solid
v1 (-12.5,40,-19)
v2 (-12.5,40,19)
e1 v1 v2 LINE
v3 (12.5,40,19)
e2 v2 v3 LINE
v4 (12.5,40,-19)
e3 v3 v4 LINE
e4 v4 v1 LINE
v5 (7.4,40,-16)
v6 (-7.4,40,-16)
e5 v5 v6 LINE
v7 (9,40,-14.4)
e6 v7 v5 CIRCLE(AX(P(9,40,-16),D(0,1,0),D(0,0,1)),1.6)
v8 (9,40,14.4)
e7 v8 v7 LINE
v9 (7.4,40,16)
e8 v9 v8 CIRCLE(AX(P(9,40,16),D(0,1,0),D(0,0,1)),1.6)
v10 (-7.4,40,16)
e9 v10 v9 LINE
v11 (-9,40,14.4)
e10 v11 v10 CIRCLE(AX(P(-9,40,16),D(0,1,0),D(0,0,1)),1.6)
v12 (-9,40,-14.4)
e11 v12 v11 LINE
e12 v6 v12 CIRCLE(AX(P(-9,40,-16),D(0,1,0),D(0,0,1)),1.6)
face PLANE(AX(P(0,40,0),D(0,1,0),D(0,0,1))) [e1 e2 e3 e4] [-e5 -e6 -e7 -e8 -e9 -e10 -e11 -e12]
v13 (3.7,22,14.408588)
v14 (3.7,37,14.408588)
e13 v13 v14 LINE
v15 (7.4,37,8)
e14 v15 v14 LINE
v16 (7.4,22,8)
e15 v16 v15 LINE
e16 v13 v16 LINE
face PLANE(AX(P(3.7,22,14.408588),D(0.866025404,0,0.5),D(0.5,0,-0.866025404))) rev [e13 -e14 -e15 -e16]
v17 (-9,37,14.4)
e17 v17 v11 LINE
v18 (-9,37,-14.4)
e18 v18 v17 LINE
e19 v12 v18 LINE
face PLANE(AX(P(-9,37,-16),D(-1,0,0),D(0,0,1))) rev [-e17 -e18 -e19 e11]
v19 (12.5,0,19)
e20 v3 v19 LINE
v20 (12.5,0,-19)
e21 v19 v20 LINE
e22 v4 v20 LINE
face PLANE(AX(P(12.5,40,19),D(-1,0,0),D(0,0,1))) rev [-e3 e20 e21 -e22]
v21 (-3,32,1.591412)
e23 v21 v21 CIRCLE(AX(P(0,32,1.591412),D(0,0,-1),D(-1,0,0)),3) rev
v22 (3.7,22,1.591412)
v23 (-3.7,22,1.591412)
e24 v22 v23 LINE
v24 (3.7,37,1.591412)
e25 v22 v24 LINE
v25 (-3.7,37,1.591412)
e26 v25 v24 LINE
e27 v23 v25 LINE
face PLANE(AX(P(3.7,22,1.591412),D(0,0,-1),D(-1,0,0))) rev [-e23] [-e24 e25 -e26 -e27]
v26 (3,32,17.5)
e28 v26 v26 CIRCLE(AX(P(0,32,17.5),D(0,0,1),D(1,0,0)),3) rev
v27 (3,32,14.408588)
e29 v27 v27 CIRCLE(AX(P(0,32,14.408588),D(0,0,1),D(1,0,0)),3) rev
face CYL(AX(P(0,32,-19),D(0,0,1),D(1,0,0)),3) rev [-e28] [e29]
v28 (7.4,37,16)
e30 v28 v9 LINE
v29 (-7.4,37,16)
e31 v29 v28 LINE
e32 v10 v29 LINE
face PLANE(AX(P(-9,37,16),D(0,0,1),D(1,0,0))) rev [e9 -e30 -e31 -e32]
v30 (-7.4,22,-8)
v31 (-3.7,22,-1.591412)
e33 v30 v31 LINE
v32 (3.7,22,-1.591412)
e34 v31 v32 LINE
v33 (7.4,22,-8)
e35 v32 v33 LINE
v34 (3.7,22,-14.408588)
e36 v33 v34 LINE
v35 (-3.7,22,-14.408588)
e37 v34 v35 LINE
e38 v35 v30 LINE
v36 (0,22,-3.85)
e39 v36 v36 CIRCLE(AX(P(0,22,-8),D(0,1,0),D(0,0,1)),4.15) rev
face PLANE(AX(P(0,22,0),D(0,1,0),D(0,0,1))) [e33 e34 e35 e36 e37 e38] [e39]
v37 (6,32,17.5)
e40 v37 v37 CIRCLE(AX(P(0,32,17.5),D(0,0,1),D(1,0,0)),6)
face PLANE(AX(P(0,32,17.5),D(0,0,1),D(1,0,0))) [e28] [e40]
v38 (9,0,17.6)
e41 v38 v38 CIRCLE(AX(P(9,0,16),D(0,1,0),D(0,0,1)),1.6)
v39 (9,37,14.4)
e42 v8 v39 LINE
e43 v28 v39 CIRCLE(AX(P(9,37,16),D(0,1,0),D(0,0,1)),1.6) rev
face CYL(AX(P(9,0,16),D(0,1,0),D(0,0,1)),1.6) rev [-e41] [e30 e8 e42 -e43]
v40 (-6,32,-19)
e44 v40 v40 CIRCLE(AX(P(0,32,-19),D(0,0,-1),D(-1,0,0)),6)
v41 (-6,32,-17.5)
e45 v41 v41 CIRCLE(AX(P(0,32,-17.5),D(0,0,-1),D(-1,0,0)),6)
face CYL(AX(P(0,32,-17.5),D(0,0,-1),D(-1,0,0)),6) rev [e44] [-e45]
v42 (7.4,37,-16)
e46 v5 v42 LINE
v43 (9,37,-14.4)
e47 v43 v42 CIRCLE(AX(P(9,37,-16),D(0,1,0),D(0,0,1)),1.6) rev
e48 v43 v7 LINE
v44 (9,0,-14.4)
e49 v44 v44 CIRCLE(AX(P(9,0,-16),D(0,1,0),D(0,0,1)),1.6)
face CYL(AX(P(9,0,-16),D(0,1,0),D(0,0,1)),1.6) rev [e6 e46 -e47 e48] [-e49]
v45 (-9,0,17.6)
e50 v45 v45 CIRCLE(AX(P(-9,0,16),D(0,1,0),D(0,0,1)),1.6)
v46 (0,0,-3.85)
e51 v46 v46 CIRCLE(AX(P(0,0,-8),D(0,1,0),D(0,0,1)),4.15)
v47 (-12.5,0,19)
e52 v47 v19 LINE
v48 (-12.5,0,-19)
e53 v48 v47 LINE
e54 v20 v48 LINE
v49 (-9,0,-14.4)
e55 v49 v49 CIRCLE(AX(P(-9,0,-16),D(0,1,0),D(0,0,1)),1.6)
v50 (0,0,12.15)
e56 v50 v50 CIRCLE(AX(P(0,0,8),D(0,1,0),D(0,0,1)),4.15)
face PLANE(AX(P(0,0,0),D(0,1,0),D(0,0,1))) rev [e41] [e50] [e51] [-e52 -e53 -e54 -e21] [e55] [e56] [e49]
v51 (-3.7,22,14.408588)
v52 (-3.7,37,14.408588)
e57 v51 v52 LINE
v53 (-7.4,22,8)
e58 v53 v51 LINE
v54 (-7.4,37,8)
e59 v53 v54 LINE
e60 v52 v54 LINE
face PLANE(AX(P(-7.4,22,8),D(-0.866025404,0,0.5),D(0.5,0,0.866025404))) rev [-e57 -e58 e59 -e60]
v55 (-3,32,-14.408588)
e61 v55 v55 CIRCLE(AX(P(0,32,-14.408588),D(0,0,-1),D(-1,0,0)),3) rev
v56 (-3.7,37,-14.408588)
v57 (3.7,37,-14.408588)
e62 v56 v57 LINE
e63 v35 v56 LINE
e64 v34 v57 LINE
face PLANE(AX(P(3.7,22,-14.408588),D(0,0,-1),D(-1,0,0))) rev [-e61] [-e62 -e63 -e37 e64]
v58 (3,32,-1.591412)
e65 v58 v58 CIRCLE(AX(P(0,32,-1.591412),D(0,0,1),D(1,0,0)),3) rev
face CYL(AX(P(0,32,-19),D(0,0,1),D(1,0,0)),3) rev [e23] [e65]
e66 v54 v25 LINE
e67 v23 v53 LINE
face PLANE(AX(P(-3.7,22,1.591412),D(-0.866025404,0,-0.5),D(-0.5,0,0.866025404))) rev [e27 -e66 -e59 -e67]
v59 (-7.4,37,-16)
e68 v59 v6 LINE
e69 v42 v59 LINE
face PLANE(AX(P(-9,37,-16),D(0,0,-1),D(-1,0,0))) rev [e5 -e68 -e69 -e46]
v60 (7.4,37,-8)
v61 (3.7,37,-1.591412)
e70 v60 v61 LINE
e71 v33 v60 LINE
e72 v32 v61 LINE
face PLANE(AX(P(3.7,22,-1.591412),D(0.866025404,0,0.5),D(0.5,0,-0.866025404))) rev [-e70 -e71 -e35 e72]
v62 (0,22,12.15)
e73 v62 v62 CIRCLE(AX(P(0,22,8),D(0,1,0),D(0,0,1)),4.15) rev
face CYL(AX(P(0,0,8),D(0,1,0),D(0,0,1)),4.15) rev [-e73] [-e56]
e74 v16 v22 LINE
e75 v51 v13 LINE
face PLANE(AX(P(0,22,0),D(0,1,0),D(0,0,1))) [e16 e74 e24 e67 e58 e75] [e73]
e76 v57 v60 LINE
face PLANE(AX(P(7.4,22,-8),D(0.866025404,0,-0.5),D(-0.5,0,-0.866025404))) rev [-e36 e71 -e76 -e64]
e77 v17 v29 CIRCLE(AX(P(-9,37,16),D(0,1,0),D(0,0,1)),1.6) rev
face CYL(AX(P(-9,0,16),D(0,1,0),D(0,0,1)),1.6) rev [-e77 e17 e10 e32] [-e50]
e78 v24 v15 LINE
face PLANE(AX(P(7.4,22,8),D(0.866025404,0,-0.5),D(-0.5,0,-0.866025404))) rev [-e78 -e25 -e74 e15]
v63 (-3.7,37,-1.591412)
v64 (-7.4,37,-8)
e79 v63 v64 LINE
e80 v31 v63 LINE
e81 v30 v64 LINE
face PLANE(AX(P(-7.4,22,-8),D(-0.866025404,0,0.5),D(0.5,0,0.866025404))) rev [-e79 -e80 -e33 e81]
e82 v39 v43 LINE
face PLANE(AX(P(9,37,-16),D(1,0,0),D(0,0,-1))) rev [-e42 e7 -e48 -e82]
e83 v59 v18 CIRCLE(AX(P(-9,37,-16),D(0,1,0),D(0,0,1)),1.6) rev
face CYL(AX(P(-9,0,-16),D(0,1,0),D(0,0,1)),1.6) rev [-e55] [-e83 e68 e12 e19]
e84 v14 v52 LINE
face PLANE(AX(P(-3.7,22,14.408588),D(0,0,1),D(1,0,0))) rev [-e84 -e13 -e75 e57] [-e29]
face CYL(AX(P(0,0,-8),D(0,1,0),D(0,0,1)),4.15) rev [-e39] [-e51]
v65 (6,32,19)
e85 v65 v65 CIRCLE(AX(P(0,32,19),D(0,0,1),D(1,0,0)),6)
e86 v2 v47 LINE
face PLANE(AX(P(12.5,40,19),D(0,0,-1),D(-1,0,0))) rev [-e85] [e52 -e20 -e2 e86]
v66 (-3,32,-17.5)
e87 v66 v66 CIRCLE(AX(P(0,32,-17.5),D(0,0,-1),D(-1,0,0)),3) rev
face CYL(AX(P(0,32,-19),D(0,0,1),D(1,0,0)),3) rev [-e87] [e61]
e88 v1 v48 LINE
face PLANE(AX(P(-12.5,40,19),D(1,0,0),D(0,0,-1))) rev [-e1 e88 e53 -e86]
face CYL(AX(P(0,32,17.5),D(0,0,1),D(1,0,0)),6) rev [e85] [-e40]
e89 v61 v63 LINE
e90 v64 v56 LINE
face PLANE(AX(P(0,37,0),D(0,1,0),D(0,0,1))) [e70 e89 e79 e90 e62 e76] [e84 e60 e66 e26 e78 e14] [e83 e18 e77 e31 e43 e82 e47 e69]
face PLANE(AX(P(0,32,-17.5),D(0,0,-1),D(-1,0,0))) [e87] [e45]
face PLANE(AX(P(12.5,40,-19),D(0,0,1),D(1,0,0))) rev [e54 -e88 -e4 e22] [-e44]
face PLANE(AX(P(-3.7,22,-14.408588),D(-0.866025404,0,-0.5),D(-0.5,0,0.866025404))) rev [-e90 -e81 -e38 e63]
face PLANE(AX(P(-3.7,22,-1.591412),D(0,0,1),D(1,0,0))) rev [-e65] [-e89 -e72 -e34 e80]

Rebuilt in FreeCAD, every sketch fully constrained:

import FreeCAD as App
import Part
import Sketcher

V = App.Vector
Q = App.Units.Quantity

doc = App.newDocument("Part")
body = doc.addObject("PartDesign::Body", "Body")

# Sketch on XZ plane
sketch1 = doc.addObject("Sketcher::SketchObject", "Sketch")
body.addObject(sketch1)
sketch1.AttachmentSupport = (doc.XZ_Plane, [""])
sketch1.MapMode = "FlatFace"
sketch1.addGeometry([
    Part.LineSegment(V(-12, -19, 0), V(-12, 19, 0)),
    Part.LineSegment(V(-12, 19, 0), V(12, 19, 0)),
    Part.LineSegment(V(12, 19, 0), V(12, -19, 0)),
    Part.LineSegment(V(12, -19, 0), V(-12, -19, 0)),
], False)
sketch1.addConstraint([
    Sketcher.Constraint("Coincident", 0, 2, 1, 1),
    Sketcher.Constraint("Coincident", 1, 2, 2, 1),
    Sketcher.Constraint("Coincident", 2, 2, 3, 1),
    Sketcher.Constraint("Coincident", 3, 2, 0, 1),
    Sketcher.Constraint("Vertical", 0),
    Sketcher.Constraint("Horizontal", 1),
    Sketcher.Constraint("Vertical", 2),
    Sketcher.Constraint("Horizontal", 3),
    Sketcher.Constraint("Symmetric", 0, 2, 2, 2, -1, 1),
    Sketcher.Constraint("DistanceX", 1, 1, 1, 2, 25.0),
    Sketcher.Constraint("DistanceY", 0, 1, 0, 2, 38.0),
])
pad1 = doc.addObject("PartDesign::Pad", "Pad")
body.addObject(pad1)
pad1.Profile = sketch1
pad1.Length = 40
pad1.Reversed = True

# Sketch on XY plane
sketch2 = doc.addObject("Sketcher::SketchObject", "Sketch001")
body.addObject(sketch2)
sketch2.AttachmentSupport = (doc.XY_Plane, [""])
sketch2.MapMode = "FlatFace"
sketch2.AttachmentOffset = App.Placement(V(0, 0, 19), App.Rotation())
sketch2.addGeometry(Part.Circle(V(0, 32, 0), V(0, 0, 1), 3), False)
sketch2.addConstraint([
    Sketcher.Constraint("PointOnObject", 0, 3, -2),
    Sketcher.Constraint("Diameter", 0, 6.0),
    Sketcher.Constraint("DistanceY", -1, 1, 0, 3, 32.0),
])
pocket1 = doc.addObject("PartDesign::Pocket", "Pocket")
body.addObject(pocket1)
pocket1.Profile = sketch2
pocket1.Type = "ThroughAll"

# Sketch on XZ plane
sketch3 = doc.addObject("Sketcher::SketchObject", "Sketch002")
body.addObject(sketch3)
sketch3.AttachmentSupport = (doc.XZ_Plane, [""])
sketch3.MapMode = "FlatFace"
sketch3.AttachmentOffset = App.Placement(V(0, 0, -40), App.Rotation())
sketch3.addGeometry([
    Part.Circle(V(0, 8, 0), V(0, 0, 1), 4.2),
    Part.Circle(V(0, -8, 0), V(0, 0, 1), 4.2),
], False)
sketch3.addConstraint([
    Sketcher.Constraint("Equal", 0, 1),
    Sketcher.Constraint("Symmetric", 0, 3, 1, 3, -1, 1),
    Sketcher.Constraint("PointOnObject", 0, 3, -2),
    Sketcher.Constraint("Diameter", 0, 8.3),
    Sketcher.Constraint("DistanceY", -1, 1, 0, 3, 8.0),
])
pocket2 = doc.addObject("PartDesign::Pocket", "Pocket001")
body.addObject(pocket2)
pocket2.Profile = sketch3
pocket2.Type = "ThroughAll"
pocket2.Reversed = True

# Sketch on XZ plane
sketch4 = doc.addObject("Sketcher::SketchObject", "Sketch003")
body.addObject(sketch4)
sketch4.AttachmentSupport = (doc.XZ_Plane, [""])
sketch4.MapMode = "FlatFace"
sketch4.AttachmentOffset = App.Placement(V(0, 0, -40), App.Rotation())
sketch4.addGeometry([
    Part.LineSegment(V(-4, 14, 0), V(4, 14, 0)),  # 0
    Part.LineSegment(V(4, 14, 0), V(7, 8, 0)),  # 1
    Part.LineSegment(V(7, 8, 0), V(4, 2, 0)),  # 2
    Part.LineSegment(V(4, 2, 0), V(-4, 2, 0)),  # 3
    Part.LineSegment(V(-4, 2, 0), V(-7, 8, 0)),  # 4
    Part.LineSegment(V(-7, 8, 0), V(-4, 14, 0)),  # 5
    Part.LineSegment(V(-4, -14, 0), V(-7, -8, 0)),  # 6
    Part.LineSegment(V(-7, -8, 0), V(-4, -2, 0)),  # 7
    Part.LineSegment(V(-4, -2, 0), V(4, -2, 0)),  # 8
    Part.LineSegment(V(4, -2, 0), V(7, -8, 0)),  # 9
    Part.LineSegment(V(7, -8, 0), V(4, -14, 0)),  # 10
    Part.LineSegment(V(4, -14, 0), V(-4, -14, 0)),  # 11
], False)
sketch4.addConstraint([
    Sketcher.Constraint("Coincident", 0, 2, 1, 1),
    Sketcher.Constraint("Coincident", 1, 2, 2, 1),
    Sketcher.Constraint("Coincident", 2, 2, 3, 1),
    Sketcher.Constraint("Coincident", 3, 2, 4, 1),
    Sketcher.Constraint("Coincident", 4, 2, 5, 1),
    Sketcher.Constraint("Coincident", 5, 2, 0, 1),
    Sketcher.Constraint("Coincident", 6, 2, 7, 1),
    Sketcher.Constraint("Coincident", 7, 2, 8, 1),
    Sketcher.Constraint("Coincident", 8, 2, 9, 1),
    Sketcher.Constraint("Coincident", 9, 2, 10, 1),
    Sketcher.Constraint("Coincident", 10, 2, 11, 1),
    Sketcher.Constraint("Coincident", 11, 2, 6, 1),
    Sketcher.Constraint("Horizontal", 0),
    Sketcher.Constraint("Horizontal", 3),
    Sketcher.Constraint("Horizontal", 8),
    Sketcher.Constraint("Horizontal", 11),
    Sketcher.Constraint("Symmetric", 1, 2, 6, 2, -1, 1),
    Sketcher.Constraint("Symmetric", 2, 2, 7, 2, -1, 1),
    Sketcher.Constraint("Symmetric", 4, 2, 9, 2, -1, 1),
    Sketcher.Constraint("Symmetric", 5, 2, 10, 2, -1, 1),
    Sketcher.Constraint("Symmetric", 1, 2, 4, 2, -2),
    Sketcher.Constraint("Parallel", 1, 4),
    Sketcher.Constraint("Parallel", 2, 5),
    Sketcher.Constraint("Parallel", 4, 6),
    Sketcher.Constraint("Parallel", 6, 9),
    Sketcher.Constraint("Vertical", 0, 2, 2, 2),
    Sketcher.Constraint("Vertical", 3, 2, 5, 2),
    Sketcher.Constraint("Angle", 1, Q("-60 deg")),
    Sketcher.Constraint("DistanceX", 0, 1, 0, 2, 7.4),
    Sketcher.Constraint("DistanceY", -1, 1, 1, 2, 8.0),
    Sketcher.Constraint("Distance", 1, 7.4),
])
pocket3 = doc.addObject("PartDesign::Pocket", "Pocket002")
body.addObject(pocket3)
pocket3.Profile = sketch4
pocket3.Length = 18
pocket3.Reversed = True

# Sketch on XZ plane
sketch5 = doc.addObject("Sketcher::SketchObject", "Sketch004")
body.addObject(sketch5)
sketch5.AttachmentSupport = (doc.XZ_Plane, [""])
sketch5.MapMode = "FlatFace"
sketch5.AttachmentOffset = App.Placement(V(0, 0, -40), App.Rotation())
sketch5.addGeometry([
    Part.Circle(V(9, 16, 0), V(0, 0, 1), 1.6),
    Part.Circle(V(-9, 16, 0), V(0, 0, 1), 1.6),
    Part.Circle(V(-9, -16, 0), V(0, 0, 1), 1.6),
    Part.Circle(V(9, -16, 0), V(0, 0, 1), 1.6),
], False)
sketch5.addConstraint([
    Sketcher.Constraint("Equal", 0, 1),
    Sketcher.Constraint("Equal", 1, 2),
    Sketcher.Constraint("Equal", 2, 3),
    Sketcher.Constraint("Symmetric", 0, 3, 2, 3, -1, 1),
    Sketcher.Constraint("Symmetric", 1, 3, 3, 3, -1, 1),
    Sketcher.Constraint("Symmetric", 0, 3, 1, 3, -2),
    Sketcher.Constraint("Diameter", 0, 3.2),
    Sketcher.Constraint("DistanceX", -1, 1, 0, 3, 9.0),
    Sketcher.Constraint("DistanceY", -1, 1, 0, 3, 16.0),
])
pocket4 = doc.addObject("PartDesign::Pocket", "Pocket003")
body.addObject(pocket4)
pocket4.Profile = sketch5
pocket4.Type = "ThroughAll"
pocket4.Reversed = True

# Sketch on XZ plane
sketch6 = doc.addObject("Sketcher::SketchObject", "Sketch005")
body.addObject(sketch6)
sketch6.AttachmentSupport = (doc.XZ_Plane, [""])
sketch6.MapMode = "FlatFace"
sketch6.AttachmentOffset = App.Placement(V(0, 0, -40), App.Rotation())
sketch6.addGeometry([
    Part.LineSegment(V(-9, -16, 0), V(-9, 16, 0)),
    Part.LineSegment(V(-9, 16, 0), V(9, 16, 0)),
    Part.LineSegment(V(9, 16, 0), V(9, -16, 0)),
    Part.LineSegment(V(9, -16, 0), V(-9, -16, 0)),
], False)
sketch6.addConstraint([
    Sketcher.Constraint("Coincident", 0, 2, 1, 1),
    Sketcher.Constraint("Coincident", 1, 2, 2, 1),
    Sketcher.Constraint("Coincident", 2, 2, 3, 1),
    Sketcher.Constraint("Coincident", 3, 2, 0, 1),
    Sketcher.Constraint("Vertical", 0),
    Sketcher.Constraint("Horizontal", 1),
    Sketcher.Constraint("Vertical", 2),
    Sketcher.Constraint("Horizontal", 3),
    Sketcher.Constraint("Symmetric", 0, 2, 2, 2, -1, 1),
    Sketcher.Constraint("DistanceX", 1, 1, 1, 2, 18.0),
    Sketcher.Constraint("DistanceY", 0, 1, 0, 2, 32.0),
])
pocket5 = doc.addObject("PartDesign::Pocket", "Pocket004")
body.addObject(pocket5)
pocket5.Profile = sketch6
pocket5.Length = 3
pocket5.Reversed = True

# Sketch on XY plane
sketch7 = doc.addObject("Sketcher::SketchObject", "Sketch006")
body.addObject(sketch7)
sketch7.AttachmentSupport = (doc.XY_Plane, [""])
sketch7.MapMode = "FlatFace"
sketch7.AttachmentOffset = App.Placement(V(0, 0, -19), App.Rotation())
sketch7.addGeometry(Part.Circle(V(0, 32, 0), V(0, 0, 1), 6), False)
sketch7.addConstraint([
    Sketcher.Constraint("PointOnObject", 0, 3, -2),
    Sketcher.Constraint("Diameter", 0, 12.0),
    Sketcher.Constraint("DistanceY", -1, 1, 0, 3, 32.0),
])
pocket6 = doc.addObject("PartDesign::Pocket", "Pocket005")
body.addObject(pocket6)
pocket6.Profile = sketch7
pocket6.Length = 1.5
pocket6.Reversed = True

# Sketch on XY plane
sketch8 = doc.addObject("Sketcher::SketchObject", "Sketch007")
body.addObject(sketch8)
sketch8.AttachmentSupport = (doc.XY_Plane, [""])
sketch8.MapMode = "FlatFace"
sketch8.AttachmentOffset = App.Placement(V(0, 0, 19), App.Rotation())
sketch8.addGeometry(Part.Circle(V(0, 32, 0), V(0, 0, 1), 6), False)
sketch8.addConstraint([
    Sketcher.Constraint("PointOnObject", 0, 3, -2),
    Sketcher.Constraint("Diameter", 0, 12.0),
    Sketcher.Constraint("DistanceY", -1, 1, 0, 3, 32.0),
])
pocket7 = doc.addObject("PartDesign::Pocket", "Pocket006")
body.addObject(pocket7)
pocket7.Profile = sketch8
pocket7.Length = 1.5

doc.recompute()
